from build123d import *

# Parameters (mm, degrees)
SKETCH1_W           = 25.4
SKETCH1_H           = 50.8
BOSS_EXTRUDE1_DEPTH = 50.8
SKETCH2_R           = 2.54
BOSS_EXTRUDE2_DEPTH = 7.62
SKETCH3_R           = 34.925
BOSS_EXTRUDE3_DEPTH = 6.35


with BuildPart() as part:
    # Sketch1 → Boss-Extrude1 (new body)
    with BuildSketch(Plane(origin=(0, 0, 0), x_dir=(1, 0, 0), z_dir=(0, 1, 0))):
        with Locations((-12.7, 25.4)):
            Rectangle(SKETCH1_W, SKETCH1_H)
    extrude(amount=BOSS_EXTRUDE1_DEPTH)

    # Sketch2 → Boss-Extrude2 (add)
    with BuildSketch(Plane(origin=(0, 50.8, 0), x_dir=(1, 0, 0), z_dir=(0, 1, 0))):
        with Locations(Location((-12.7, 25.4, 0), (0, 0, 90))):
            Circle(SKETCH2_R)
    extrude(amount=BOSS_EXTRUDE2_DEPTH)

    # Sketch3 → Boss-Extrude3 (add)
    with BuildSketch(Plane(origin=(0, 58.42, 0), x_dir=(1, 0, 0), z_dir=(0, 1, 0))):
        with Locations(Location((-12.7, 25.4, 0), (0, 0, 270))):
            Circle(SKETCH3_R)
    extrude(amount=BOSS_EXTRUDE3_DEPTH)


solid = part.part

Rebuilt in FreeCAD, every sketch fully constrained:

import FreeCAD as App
import Part
import Sketcher
from FreeCAD import Vector
Q = App.Units.Quantity

doc = App.newDocument("Part")
body = doc.addObject("PartDesign::Body", "Body")

# Sketch on XZ plane
sketch1 = body.newObject("Sketcher::SketchObject", "Sketch")
sketch1.AttachmentSupport = (doc.getObject("XZ_Plane"), [""])
sketch1.MapMode = "FlatFace"
sketch1.addGeometry([
    Part.LineSegment(Vector(-25.4, -50.8, 0), Vector(-25.4, 0, 0)),
    Part.LineSegment(Vector(-25.4, 0, 0), Vector(0, 0, 0)),
    Part.LineSegment(Vector(0, 0, 0), Vector(0, -50.8, 0)),
    Part.LineSegment(Vector(0, -50.8, 0), Vector(-25.4, -50.8, 0)),
], False)
sketch1.addConstraint([
    Sketcher.Constraint("Coincident", 0, 2, 1, 1),
    Sketcher.Constraint("Coincident", 1, 2, 2, 1),
    Sketcher.Constraint("Coincident", 2, 2, 3, 1),
    Sketcher.Constraint("Coincident", 3, 2, 0, 1),
    Sketcher.Constraint("Vertical", 0),
    Sketcher.Constraint("Horizontal", 1),
    Sketcher.Constraint("Vertical", 2),
    Sketcher.Constraint("Horizontal", 3),
    Sketcher.Constraint("Coincident", 1, 2, -1, 1),
    Sketcher.Constraint("DistanceX", 1, 1, 1, 2, Q("1 in")),
    Sketcher.Constraint("DistanceY", 0, 1, 0, 2, Q("2 in")),
])
pad1 = body.newObject("PartDesign::Pad", "Pad")
pad1.Profile = sketch1
pad1.Length = Q("2 in")
pad1.Reversed = True

# Sketch on XZ plane
sketch2 = body.newObject("Sketcher::SketchObject", "Sketch001")
sketch2.AttachmentSupport = (doc.getObject("XZ_Plane"), [""])
sketch2.MapMode = "FlatFace"
sketch2.AttachmentOffset = App.Placement(Vector(0, 0, -2 * 25.4), App.Rotation())
sketch2.addGeometry(Part.Circle(Vector(-12.7, -25.4, 0), Vector(0, 0, 1), 2.54), False)
sketch2.addConstraint([
    Sketcher.Constraint("Diameter", 0, Q("0.2 in")),
    Sketcher.Constraint("DistanceY", 0, 3, -1, 1, Q("1 in")),
    Sketcher.Constraint("DistanceX", 0, 3, -1, 1, Q("0.5 in")),
])
pad2 = body.newObject("PartDesign::Pad", "Pad001")
pad2.Profile = sketch2
pad2.Length = Q("0.3 in")
pad2.Reversed = True

# Sketch on XZ plane
sketch3 = body.newObject("Sketcher::SketchObject", "Sketch002")
sketch3.AttachmentSupport = (doc.getObject("XZ_Plane"), [""])
sketch3.MapMode = "FlatFace"
sketch3.AttachmentOffset = App.Placement(Vector(0, 0, -2.3 * 25.4), App.Rotation())
sketch3.addGeometry(Part.Circle(Vector(-12.7, -25.4, 0), Vector(0, 0, 1), 34.925), False)
sketch3.addConstraint([
    Sketcher.Constraint("Diameter", 0, Q("2.75 in")),
    Sketcher.Constraint("DistanceY", 0, 3, -1, 1, Q("1 in")),
    Sketcher.Constraint("DistanceX", 0, 3, -1, 1, Q("0.5 in")),
])
pad3 = body.newObject("PartDesign::Pad", "Pad002")
pad3.Profile = sketch3
pad3.Length = Q("0.25 in")
pad3.Reversed = True

doc.recompute()
